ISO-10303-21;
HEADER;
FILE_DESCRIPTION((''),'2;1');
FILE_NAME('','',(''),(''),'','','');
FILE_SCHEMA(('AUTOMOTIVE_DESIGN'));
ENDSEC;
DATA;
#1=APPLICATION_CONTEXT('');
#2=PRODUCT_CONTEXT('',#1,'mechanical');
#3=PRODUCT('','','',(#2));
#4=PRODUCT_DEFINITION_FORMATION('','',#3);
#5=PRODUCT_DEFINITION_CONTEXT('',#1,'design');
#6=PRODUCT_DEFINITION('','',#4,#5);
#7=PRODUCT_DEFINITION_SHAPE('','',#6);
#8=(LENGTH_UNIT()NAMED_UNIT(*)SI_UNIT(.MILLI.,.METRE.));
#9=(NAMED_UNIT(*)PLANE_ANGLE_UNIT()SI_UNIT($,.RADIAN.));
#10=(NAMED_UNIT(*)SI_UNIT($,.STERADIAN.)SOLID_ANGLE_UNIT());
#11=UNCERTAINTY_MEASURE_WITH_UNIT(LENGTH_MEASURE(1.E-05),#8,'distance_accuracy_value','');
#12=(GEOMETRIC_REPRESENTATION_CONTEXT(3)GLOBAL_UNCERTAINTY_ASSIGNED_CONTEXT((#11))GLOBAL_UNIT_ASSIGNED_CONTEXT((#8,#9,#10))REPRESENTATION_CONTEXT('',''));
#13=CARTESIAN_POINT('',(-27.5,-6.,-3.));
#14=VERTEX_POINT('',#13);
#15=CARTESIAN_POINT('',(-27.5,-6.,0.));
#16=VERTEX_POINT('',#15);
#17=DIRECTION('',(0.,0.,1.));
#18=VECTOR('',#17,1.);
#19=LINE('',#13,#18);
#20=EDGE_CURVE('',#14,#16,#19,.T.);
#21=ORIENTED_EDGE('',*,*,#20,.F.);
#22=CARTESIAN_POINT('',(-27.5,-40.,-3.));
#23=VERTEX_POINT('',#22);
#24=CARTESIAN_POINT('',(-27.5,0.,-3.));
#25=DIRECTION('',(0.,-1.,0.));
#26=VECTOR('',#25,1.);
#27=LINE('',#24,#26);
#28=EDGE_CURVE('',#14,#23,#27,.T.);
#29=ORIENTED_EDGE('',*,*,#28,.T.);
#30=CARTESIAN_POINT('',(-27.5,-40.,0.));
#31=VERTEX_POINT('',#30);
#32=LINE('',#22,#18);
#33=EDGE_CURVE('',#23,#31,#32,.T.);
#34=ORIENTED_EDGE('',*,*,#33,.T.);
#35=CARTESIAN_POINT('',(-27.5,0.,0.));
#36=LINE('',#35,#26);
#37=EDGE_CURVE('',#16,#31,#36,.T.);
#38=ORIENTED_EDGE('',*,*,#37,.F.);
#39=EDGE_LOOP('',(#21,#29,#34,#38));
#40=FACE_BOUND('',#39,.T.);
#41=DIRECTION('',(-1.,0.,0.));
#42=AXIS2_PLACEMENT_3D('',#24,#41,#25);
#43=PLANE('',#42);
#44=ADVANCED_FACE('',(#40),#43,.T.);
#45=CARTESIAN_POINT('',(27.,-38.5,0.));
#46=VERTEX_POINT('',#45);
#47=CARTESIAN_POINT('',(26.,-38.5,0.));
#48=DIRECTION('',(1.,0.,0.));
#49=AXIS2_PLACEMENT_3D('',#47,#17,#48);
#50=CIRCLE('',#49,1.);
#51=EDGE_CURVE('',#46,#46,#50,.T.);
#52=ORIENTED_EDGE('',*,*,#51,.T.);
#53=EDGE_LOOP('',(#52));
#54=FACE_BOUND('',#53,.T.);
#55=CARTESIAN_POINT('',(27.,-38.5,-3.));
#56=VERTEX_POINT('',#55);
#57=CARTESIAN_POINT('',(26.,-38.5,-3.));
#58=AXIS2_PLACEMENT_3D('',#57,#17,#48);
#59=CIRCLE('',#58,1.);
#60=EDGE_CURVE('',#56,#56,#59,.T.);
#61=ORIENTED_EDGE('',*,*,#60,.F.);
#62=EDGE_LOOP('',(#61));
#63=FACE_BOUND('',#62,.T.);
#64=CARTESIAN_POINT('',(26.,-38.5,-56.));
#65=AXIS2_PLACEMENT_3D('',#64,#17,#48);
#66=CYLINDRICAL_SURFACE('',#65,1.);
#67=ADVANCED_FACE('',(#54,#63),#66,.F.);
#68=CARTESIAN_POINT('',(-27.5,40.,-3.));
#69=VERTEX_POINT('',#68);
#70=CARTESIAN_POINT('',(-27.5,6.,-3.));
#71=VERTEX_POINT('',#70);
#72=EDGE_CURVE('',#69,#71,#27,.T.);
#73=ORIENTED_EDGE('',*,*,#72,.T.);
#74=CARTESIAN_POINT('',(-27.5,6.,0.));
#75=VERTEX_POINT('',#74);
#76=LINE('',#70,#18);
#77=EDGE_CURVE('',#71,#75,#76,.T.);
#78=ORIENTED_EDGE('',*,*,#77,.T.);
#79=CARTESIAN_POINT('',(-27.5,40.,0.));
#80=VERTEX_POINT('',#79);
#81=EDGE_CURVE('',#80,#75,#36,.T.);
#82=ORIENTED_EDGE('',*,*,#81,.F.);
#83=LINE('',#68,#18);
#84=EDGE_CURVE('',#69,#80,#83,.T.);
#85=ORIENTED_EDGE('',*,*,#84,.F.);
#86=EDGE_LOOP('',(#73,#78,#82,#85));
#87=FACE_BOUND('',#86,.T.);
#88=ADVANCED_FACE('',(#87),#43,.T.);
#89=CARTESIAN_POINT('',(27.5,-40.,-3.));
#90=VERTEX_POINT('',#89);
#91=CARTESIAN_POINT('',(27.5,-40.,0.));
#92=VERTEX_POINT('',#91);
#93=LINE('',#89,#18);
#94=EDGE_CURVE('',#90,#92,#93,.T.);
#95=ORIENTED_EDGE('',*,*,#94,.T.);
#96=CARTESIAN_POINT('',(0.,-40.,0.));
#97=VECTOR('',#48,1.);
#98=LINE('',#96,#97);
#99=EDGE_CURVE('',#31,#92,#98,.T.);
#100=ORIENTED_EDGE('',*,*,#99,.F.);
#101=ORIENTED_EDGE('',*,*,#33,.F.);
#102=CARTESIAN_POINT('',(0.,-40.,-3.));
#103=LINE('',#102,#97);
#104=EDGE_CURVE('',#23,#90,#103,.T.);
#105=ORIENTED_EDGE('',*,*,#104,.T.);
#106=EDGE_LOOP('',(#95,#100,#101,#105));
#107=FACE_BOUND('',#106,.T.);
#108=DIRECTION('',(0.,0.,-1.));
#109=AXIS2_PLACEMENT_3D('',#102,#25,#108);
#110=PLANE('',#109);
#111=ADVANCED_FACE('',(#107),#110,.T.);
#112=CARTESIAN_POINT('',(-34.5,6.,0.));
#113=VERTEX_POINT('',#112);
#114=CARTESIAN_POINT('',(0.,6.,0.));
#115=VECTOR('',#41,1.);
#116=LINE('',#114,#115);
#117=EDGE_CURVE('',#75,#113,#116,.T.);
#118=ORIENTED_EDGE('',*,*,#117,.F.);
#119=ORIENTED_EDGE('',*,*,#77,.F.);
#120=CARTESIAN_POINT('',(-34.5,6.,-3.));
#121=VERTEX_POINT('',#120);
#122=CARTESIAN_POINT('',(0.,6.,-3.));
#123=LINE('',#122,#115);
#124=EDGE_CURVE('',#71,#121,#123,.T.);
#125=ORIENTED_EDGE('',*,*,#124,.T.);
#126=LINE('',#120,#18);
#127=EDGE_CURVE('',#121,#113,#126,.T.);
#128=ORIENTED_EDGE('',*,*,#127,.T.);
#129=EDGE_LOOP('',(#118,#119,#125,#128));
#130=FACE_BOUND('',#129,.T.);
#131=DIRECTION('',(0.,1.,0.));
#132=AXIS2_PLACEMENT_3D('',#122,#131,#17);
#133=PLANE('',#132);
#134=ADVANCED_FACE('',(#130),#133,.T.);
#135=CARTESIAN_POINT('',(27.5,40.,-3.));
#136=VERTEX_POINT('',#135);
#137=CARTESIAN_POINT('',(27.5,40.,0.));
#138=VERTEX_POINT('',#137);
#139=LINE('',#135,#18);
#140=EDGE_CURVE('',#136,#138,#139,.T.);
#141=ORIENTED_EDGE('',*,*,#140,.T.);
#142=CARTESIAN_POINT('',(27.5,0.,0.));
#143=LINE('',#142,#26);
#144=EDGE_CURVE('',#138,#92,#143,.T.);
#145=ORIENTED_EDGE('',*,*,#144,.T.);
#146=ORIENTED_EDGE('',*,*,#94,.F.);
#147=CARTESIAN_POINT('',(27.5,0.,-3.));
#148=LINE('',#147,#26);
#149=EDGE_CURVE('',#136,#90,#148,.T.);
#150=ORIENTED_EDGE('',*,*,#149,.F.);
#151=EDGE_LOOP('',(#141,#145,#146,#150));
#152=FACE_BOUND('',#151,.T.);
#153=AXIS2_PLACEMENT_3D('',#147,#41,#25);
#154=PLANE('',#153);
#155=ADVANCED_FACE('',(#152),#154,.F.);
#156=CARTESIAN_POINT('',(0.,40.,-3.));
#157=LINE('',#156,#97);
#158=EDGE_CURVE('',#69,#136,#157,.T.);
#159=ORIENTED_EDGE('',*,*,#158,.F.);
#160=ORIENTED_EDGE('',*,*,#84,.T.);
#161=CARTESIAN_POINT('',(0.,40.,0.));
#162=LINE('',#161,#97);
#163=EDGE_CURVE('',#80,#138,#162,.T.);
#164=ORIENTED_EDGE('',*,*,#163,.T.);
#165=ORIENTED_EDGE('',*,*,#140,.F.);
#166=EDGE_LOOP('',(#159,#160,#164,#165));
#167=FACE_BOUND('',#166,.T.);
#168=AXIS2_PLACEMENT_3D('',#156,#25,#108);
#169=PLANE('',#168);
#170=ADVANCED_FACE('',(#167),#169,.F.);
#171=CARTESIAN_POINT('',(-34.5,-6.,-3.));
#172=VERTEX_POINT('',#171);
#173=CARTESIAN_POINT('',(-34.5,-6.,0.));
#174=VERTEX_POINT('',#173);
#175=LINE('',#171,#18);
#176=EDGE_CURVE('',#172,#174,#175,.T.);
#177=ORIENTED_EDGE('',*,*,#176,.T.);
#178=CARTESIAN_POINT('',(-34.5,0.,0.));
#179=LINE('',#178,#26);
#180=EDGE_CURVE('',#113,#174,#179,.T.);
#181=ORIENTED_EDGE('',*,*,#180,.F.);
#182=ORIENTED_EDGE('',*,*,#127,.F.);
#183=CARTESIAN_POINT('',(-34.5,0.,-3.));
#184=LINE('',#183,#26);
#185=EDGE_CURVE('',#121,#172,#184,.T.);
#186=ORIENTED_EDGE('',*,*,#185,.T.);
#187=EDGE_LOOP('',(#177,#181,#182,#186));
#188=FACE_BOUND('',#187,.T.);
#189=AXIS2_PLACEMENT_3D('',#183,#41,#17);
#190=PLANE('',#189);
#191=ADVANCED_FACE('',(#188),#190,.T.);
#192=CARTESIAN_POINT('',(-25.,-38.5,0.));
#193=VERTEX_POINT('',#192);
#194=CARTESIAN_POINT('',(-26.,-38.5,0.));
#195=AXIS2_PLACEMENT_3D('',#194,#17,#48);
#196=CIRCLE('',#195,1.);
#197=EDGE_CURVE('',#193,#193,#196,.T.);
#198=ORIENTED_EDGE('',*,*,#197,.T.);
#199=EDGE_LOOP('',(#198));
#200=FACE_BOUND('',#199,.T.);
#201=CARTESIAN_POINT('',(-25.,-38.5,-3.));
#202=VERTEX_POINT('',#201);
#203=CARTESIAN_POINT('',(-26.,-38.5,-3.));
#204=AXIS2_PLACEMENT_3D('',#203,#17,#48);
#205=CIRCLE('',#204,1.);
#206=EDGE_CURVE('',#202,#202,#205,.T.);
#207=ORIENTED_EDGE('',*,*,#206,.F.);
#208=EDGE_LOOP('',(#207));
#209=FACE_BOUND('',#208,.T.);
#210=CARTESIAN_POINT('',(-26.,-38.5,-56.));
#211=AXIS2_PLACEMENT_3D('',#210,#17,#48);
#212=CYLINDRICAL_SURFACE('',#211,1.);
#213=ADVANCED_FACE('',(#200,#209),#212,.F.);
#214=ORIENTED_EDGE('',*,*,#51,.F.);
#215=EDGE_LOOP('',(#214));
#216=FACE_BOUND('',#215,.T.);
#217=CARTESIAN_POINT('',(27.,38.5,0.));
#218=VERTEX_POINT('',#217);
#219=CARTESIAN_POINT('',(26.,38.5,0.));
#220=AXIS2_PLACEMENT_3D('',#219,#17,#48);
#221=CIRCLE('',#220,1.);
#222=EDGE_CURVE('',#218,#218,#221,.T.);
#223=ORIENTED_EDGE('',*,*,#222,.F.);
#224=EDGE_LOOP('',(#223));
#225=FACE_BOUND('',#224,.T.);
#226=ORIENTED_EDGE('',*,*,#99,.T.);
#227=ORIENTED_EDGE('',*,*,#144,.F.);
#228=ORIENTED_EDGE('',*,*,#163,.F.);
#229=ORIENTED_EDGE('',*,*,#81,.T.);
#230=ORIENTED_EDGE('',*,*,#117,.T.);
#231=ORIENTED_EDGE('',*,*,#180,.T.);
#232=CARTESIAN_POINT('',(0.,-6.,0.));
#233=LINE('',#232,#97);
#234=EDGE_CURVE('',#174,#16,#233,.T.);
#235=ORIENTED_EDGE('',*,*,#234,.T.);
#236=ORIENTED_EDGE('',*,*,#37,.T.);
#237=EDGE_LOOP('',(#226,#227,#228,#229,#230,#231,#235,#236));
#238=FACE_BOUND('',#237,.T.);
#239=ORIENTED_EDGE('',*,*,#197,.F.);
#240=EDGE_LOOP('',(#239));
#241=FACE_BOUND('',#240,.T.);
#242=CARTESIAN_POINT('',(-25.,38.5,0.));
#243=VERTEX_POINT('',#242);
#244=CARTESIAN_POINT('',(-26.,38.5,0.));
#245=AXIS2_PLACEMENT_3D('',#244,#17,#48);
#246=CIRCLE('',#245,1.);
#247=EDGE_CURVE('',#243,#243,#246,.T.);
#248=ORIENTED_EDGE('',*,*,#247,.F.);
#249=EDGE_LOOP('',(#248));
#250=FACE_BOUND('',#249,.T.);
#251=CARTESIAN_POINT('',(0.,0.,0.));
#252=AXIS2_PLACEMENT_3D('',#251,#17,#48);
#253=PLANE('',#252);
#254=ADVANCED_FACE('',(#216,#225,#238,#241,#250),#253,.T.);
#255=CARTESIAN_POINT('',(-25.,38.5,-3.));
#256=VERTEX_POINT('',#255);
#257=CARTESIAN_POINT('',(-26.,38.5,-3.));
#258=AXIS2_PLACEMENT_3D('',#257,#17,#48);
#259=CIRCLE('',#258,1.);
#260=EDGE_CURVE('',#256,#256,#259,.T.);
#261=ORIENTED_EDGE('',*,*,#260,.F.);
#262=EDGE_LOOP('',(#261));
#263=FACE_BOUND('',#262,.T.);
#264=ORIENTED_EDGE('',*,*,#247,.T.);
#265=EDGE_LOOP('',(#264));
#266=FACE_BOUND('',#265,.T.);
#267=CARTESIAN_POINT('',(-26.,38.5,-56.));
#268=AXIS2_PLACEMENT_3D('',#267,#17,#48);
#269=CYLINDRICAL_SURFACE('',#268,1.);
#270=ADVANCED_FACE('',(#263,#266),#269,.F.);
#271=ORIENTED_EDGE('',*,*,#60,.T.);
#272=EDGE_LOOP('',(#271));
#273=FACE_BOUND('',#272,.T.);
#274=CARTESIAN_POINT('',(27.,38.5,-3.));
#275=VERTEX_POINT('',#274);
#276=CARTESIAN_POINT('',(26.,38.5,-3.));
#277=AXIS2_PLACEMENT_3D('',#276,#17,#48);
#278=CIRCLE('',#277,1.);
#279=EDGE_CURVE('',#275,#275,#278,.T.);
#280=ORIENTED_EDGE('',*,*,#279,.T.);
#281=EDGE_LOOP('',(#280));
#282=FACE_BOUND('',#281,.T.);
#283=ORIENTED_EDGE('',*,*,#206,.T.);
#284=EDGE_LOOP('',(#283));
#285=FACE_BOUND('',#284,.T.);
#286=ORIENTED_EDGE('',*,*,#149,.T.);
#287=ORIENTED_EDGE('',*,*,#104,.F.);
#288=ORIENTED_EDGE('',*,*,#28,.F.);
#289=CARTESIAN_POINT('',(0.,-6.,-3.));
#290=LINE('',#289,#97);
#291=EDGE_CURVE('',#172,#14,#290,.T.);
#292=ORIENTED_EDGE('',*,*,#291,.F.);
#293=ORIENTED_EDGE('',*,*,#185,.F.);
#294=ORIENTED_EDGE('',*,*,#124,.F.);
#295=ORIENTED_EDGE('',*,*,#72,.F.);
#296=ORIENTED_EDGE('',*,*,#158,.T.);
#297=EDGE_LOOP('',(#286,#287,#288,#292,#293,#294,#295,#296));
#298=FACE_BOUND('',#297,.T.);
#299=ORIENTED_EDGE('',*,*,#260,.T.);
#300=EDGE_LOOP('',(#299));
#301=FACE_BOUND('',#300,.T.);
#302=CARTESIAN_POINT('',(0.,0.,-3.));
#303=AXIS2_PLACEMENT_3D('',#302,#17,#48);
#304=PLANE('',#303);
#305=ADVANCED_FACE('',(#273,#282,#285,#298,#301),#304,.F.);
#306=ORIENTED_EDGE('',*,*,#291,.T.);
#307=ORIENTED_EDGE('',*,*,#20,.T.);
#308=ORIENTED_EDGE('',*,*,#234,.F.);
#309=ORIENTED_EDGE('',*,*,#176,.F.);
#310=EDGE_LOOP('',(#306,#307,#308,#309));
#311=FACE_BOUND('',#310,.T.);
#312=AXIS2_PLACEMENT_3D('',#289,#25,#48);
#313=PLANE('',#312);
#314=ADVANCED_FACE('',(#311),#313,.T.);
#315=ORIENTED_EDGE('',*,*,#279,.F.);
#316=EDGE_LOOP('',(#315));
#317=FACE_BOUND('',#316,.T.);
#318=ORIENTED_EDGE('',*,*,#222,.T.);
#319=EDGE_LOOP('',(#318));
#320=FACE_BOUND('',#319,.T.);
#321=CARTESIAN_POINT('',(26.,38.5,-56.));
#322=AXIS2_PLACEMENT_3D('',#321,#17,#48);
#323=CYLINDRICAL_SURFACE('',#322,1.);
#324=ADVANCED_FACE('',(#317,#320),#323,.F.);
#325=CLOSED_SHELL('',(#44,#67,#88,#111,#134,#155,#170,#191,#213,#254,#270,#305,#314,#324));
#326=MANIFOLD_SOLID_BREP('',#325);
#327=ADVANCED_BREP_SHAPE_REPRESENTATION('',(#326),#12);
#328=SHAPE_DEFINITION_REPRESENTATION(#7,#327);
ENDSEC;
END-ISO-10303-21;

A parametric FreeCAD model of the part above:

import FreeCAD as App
import Part
import Sketcher
Q = App.Units.Quantity

doc = App.newDocument("Part")
body = doc.addObject("PartDesign::Body", "Body")

sketch1 = body.newObject("Sketcher::SketchObject", "Sketch")
sketch1.AttachmentSupport = (doc.getObject("XY_Plane"), [""])
sketch1.MapMode = "FlatFace"
sketch1.addGeometry(Part.LineSegment(App.Vector(-34.5, -6, 0), App.Vector(-27.5, -6, 0)), False)
sketch1.addGeometry(Part.LineSegment(App.Vector(-27.5, -6, 0), App.Vector(-27.5, -40, 0)), False)
sketch1.addGeometry(Part.LineSegment(App.Vector(-27.5, -40, 0), App.Vector(27.5, -40, 0)), False)
sketch1.addGeometry(Part.LineSegment(App.Vector(27.5, -40, 0), App.Vector(27.5, 40, 0)), False)
sketch1.addGeometry(Part.LineSegment(App.Vector(27.5, 40, 0), App.Vector(-27.5, 40, 0)), False)
sketch1.addGeometry(Part.LineSegment(App.Vector(-27.5, 40, 0), App.Vector(-27.5, 6, 0)), False)
sketch1.addGeometry(Part.LineSegment(App.Vector(-27.5, 6, 0), App.Vector(-34.5, 6, 0)), False)
sketch1.addGeometry(Part.LineSegment(App.Vector(-34.5, 6, 0), App.Vector(-34.5, -6, 0)), False)
sketch1.addConstraint(Sketcher.Constraint("Coincident", 0, 2, 1, 1))
sketch1.addConstraint(Sketcher.Constraint("Coincident", 1, 2, 2, 1))
sketch1.addConstraint(Sketcher.Constraint("Coincident", 2, 2, 3, 1))
sketch1.addConstraint(Sketcher.Constraint("Coincident", 3, 2, 4, 1))
sketch1.addConstraint(Sketcher.Constraint("Coincident", 4, 2, 5, 1))
sketch1.addConstraint(Sketcher.Constraint("Coincident", 5, 2, 6, 1))
sketch1.addConstraint(Sketcher.Constraint("Coincident", 6, 2, 7, 1))
sketch1.addConstraint(Sketcher.Constraint("Coincident", 7, 2, 0, 1))
sketch1.addConstraint(Sketcher.Constraint("Horizontal", 0))
sketch1.addConstraint(Sketcher.Constraint("Vertical", 1))
sketch1.addConstraint(Sketcher.Constraint("Horizontal", 2))
sketch1.addConstraint(Sketcher.Constraint("Vertical", 3))
sketch1.addConstraint(Sketcher.Constraint("Horizontal", 4))
sketch1.addConstraint(Sketcher.Constraint("Vertical", 5))
sketch1.addConstraint(Sketcher.Constraint("Horizontal", 6))
sketch1.addConstraint(Sketcher.Constraint("Vertical", 7))
sketch1.addConstraint(Sketcher.Constraint("Symmetric", 1, 2, 3, 2, -1, 1))
sketch1.addConstraint(Sketcher.Constraint("Symmetric", 0, 2, 5, 2, -1))
sketch1.addConstraint(Sketcher.Constraint("DistanceX", 0, 1, 0, 2, Q("7 mm")))
sketch1.addConstraint(Sketcher.Constraint("DistanceX", 2, 1, 2, 2, Q("55 mm")))
sketch1.addConstraint(Sketcher.Constraint("DistanceY", 1, 2, 1, 1, Q("34 mm")))
sketch1.addConstraint(Sketcher.Constraint("DistanceY", 3, 1, 3, 2, Q("80 mm")))
pad1 = body.newObject("PartDesign::Pad", "Pad")
pad1.Profile = sketch1
pad1.Length = 3
pad1.Reversed = True

sketch2 = body.newObject("Sketcher::SketchObject", "Sketch001")
sketch2.AttachmentSupport = (doc.getObject("XY_Plane"), [""])
sketch2.MapMode = "FlatFace"
sketch2.addGeometry(Part.Circle(App.Vector(-26, -38.5, 0), App.Vector(0, 0, 1), 1), False)
sketch2.addGeometry(Part.Circle(App.Vector(26, -38.5, 0), App.Vector(0, 0, 1), 1), False)
sketch2.addGeometry(Part.Circle(App.Vector(26, 38.5, 0), App.Vector(0, 0, 1), 1), False)
sketch2.addGeometry(Part.Circle(App.Vector(-26, 38.5, 0), App.Vector(0, 0, 1), 1), False)
sketch2.addConstraint(Sketcher.Constraint("Equal", 0, 1))
sketch2.addConstraint(Sketcher.Constraint("Equal", 1, 2))
sketch2.addConstraint(Sketcher.Constraint("Equal", 2, 3))
sketch2.addConstraint(Sketcher.Constraint("Symmetric", 0, 3, 2, 3, -1, 1))
sketch2.addConstraint(Sketcher.Constraint("Symmetric", 1, 3, 3, 3, -1, 1))
sketch2.addConstraint(Sketcher.Constraint("Symmetric", 0, 3, 1, 3, -2))
sketch2.addConstraint(Sketcher.Constraint("Diameter", 0, Q("2 mm")))
sketch2.addConstraint(Sketcher.Constraint("DistanceX", 0, 3, -1, 1, Q("26 mm")))
sketch2.addConstraint(Sketcher.Constraint("DistanceY", 1, 3, 2, 3, Q("77 mm")))
pocket1 = body.newObject("PartDesign::Pocket", "Pocket")
pocket1.Profile = sketch2
pocket1.Length = 56

doc.recompute()
